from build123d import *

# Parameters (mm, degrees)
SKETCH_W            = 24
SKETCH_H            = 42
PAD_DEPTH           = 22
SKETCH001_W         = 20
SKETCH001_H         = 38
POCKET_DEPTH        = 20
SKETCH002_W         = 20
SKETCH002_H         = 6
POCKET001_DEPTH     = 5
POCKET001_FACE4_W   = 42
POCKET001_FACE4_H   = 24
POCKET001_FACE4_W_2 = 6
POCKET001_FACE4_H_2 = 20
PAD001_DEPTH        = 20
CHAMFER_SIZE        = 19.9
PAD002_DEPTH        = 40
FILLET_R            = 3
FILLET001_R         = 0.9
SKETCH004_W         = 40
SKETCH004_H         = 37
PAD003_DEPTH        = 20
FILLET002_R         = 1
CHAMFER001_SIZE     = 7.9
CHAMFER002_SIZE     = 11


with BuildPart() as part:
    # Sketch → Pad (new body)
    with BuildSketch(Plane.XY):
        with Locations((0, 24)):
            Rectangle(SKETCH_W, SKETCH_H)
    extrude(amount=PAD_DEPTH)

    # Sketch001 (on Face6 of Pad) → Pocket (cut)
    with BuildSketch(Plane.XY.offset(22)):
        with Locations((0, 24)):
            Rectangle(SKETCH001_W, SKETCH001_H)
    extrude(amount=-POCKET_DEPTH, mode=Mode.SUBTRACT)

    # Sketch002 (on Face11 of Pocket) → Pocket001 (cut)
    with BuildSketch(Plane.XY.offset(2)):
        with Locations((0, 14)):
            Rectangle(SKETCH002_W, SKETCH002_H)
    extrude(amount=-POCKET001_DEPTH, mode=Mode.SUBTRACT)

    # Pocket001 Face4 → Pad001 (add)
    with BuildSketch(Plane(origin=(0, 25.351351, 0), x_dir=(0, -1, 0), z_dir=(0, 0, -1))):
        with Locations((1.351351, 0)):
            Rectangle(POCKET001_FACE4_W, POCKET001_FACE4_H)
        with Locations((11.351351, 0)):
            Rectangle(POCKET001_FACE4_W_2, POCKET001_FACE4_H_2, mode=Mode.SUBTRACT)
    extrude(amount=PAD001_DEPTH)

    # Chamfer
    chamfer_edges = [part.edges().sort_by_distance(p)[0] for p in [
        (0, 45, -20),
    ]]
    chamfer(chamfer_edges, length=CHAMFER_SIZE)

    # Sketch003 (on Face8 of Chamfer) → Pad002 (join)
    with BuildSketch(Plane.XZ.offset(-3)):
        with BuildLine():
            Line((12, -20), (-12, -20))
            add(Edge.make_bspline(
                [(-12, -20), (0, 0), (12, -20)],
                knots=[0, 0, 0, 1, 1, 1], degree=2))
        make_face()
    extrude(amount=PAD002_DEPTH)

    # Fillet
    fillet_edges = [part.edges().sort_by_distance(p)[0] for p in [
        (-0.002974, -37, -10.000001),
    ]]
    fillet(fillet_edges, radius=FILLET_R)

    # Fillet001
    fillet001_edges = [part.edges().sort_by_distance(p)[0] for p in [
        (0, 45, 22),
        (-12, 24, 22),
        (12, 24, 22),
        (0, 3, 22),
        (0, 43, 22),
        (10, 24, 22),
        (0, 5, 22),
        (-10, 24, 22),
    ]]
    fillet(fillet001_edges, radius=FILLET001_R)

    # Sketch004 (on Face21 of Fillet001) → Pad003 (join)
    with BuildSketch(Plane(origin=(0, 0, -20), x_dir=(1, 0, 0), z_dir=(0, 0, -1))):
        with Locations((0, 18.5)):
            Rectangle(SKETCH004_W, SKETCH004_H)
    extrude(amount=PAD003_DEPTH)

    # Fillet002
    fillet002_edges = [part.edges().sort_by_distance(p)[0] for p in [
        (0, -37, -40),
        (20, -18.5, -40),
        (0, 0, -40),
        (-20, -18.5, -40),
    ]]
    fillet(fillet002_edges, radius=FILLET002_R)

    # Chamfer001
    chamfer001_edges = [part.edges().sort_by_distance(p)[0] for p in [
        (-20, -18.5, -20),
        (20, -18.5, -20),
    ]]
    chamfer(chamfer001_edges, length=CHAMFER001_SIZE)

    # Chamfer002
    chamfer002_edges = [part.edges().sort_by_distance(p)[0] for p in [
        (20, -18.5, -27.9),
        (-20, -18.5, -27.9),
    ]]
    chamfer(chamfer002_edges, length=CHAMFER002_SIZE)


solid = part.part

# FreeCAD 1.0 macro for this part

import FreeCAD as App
import Part
import Sketcher
from FreeCAD import Vector


def edges_at(feature, points):
    """Names of the edges that pass closest to the given points."""
    edges = feature.Shape.Edges
    near = lambda p: min(range(len(edges)), key=lambda i: edges[i].distToShape(Part.Vertex(*p))[0])
    return sorted({f"Edge{near(p) + 1}" for p in points})

doc = App.newDocument("Part")
body = doc.addObject("PartDesign::Body", "Body")

# Sketch on XY plane
sketch1 = doc.addObject("Sketcher::SketchObject", "Sketch")
body.addObject(sketch1)
sketch1.AttachmentSupport = (doc.XY_Plane, [""])
sketch1.MapMode = "FlatFace"
sketch1.addGeometry(Part.LineSegment(Vector(-12, 45, 0), Vector(-12, 3, 0)), False)
sketch1.addGeometry(Part.LineSegment(Vector(-12, 3, 0), Vector(12, 3, 0)), False)
sketch1.addGeometry(Part.LineSegment(Vector(12, 3, 0), Vector(12, 45, 0)), False)
sketch1.addGeometry(Part.LineSegment(Vector(12, 45, 0), Vector(-12, 45, 0)), False)
sketch1.addConstraint(Sketcher.Constraint("Coincident", 0, 2, 1, 1))
sketch1.addConstraint(Sketcher.Constraint("Coincident", 1, 2, 2, 1))
sketch1.addConstraint(Sketcher.Constraint("Coincident", 2, 2, 3, 1))
sketch1.addConstraint(Sketcher.Constraint("Coincident", 3, 2, 0, 1))
sketch1.addConstraint(Sketcher.Constraint("Vertical", 0))
sketch1.addConstraint(Sketcher.Constraint("Horizontal", 1))
sketch1.addConstraint(Sketcher.Constraint("Vertical", 2))
sketch1.addConstraint(Sketcher.Constraint("Horizontal", 3))
sketch1.addConstraint(Sketcher.Constraint("DistanceX", 1, 1, 1, 2, 24.0))
sketch1.addConstraint(Sketcher.Constraint("DistanceY", 0, 2, 0, 1, 42.0))
sketch1.addConstraint(Sketcher.Constraint("DistanceX", 0, 2, -1, 1, 12.0))
sketch1.addConstraint(Sketcher.Constraint("DistanceY", -1, 1, 0, 2, 3.0))
pad1 = doc.addObject("PartDesign::Pad", "Pad")
body.addObject(pad1)
pad1.Profile = sketch1
pad1.Length = 22

# Sketch on XY plane
sketch2 = doc.addObject("Sketcher::SketchObject", "Sketch001")
body.addObject(sketch2)
sketch2.AttachmentSupport = (doc.XY_Plane, [""])
sketch2.MapMode = "FlatFace"
sketch2.AttachmentOffset = App.Placement(Vector(0, 0, 22), App.Rotation())
sketch2.addGeometry(Part.LineSegment(Vector(-10, 43, 0), Vector(-10, 5, 0)), False)
sketch2.addGeometry(Part.LineSegment(Vector(-10, 5, 0), Vector(10, 5, 0)), False)
sketch2.addGeometry(Part.LineSegment(Vector(10, 5, 0), Vector(10, 43, 0)), False)
sketch2.addGeometry(Part.LineSegment(Vector(10, 43, 0), Vector(-10, 43, 0)), False)
sketch2.addConstraint(Sketcher.Constraint("Coincident", 0, 2, 1, 1))
sketch2.addConstraint(Sketcher.Constraint("Coincident", 1, 2, 2, 1))
sketch2.addConstraint(Sketcher.Constraint("Coincident", 2, 2, 3, 1))
sketch2.addConstraint(Sketcher.Constraint("Coincident", 3, 2, 0, 1))
sketch2.addConstraint(Sketcher.Constraint("Vertical", 0))
sketch2.addConstraint(Sketcher.Constraint("Horizontal", 1))
sketch2.addConstraint(Sketcher.Constraint("Vertical", 2))
sketch2.addConstraint(Sketcher.Constraint("Horizontal", 3))
sketch2.addConstraint(Sketcher.Constraint("DistanceX", 1, 1, 1, 2, 20.0))
sketch2.addConstraint(Sketcher.Constraint("DistanceY", 0, 2, 0, 1, 38.0))
sketch2.addConstraint(Sketcher.Constraint("DistanceX", 0, 2, -1, 1, 10.0))
sketch2.addConstraint(Sketcher.Constraint("DistanceY", -1, 1, 0, 2, 5.0))
pocket1 = doc.addObject("PartDesign::Pocket", "Pocket")
body.addObject(pocket1)
pocket1.Profile = sketch2
pocket1.Length = 20

# Sketch on XY plane
sketch3 = doc.addObject("Sketcher::SketchObject", "Sketch002")
body.addObject(sketch3)
sketch3.AttachmentSupport = (doc.XY_Plane, [""])
sketch3.MapMode = "FlatFace"
sketch3.AttachmentOffset = App.Placement(Vector(0, 0, 2), App.Rotation())
sketch3.addGeometry(Part.LineSegment(Vector(-10, 17, 0), Vector(-10, 11, 0)), False)
sketch3.addGeometry(Part.LineSegment(Vector(-10, 11, 0), Vector(10, 11, 0)), False)
sketch3.addGeometry(Part.LineSegment(Vector(10, 11, 0), Vector(10, 17, 0)), False)
sketch3.addGeometry(Part.LineSegment(Vector(10, 17, 0), Vector(-10, 17, 0)), False)
sketch3.addConstraint(Sketcher.Constraint("Coincident", 0, 2, 1, 1))
sketch3.addConstraint(Sketcher.Constraint("Coincident", 1, 2, 2, 1))
sketch3.addConstraint(Sketcher.Constraint("Coincident", 2, 2, 3, 1))
sketch3.addConstraint(Sketcher.Constraint("Coincident", 3, 2, 0, 1))
sketch3.addConstraint(Sketcher.Constraint("Vertical", 0))
sketch3.addConstraint(Sketcher.Constraint("Horizontal", 1))
sketch3.addConstraint(Sketcher.Constraint("Vertical", 2))
sketch3.addConstraint(Sketcher.Constraint("Horizontal", 3))
sketch3.addConstraint(Sketcher.Constraint("DistanceX", 1, 1, 1, 2, 20.0))
sketch3.addConstraint(Sketcher.Constraint("DistanceY", 0, 2, 0, 1, 6.0))
sketch3.addConstraint(Sketcher.Constraint("DistanceX", 0, 2, -1, 1, 10.0))
sketch3.addConstraint(Sketcher.Constraint("DistanceY", -1, 1, 0, 2, 11.0))
pocket2 = doc.addObject("PartDesign::Pocket", "Pocket001")
body.addObject(pocket2)
pocket2.Profile = sketch3
pocket2.Length = 5

# Sketch on XY plane
sketch4 = doc.addObject("Sketcher::SketchObject", "Sketch003")
body.addObject(sketch4)
sketch4.AttachmentSupport = (doc.XY_Plane, [""])
sketch4.MapMode = "FlatFace"
sketch4.addGeometry(Part.LineSegment(Vector(-12, 45, 0), Vector(12, 45, 0)), False)
sketch4.addGeometry(Part.LineSegment(Vector(12, 45, 0), Vector(12, 3, 0)), False)
sketch4.addGeometry(Part.LineSegment(Vector(12, 3, 0), Vector(-12, 3, 0)), False)
sketch4.addGeometry(Part.LineSegment(Vector(-12, 3, 0), Vector(-12, 45, 0)), False)
sketch4.addGeometry(Part.LineSegment(Vector(10, 11, 0), Vector(10, 17, 0)), False)
sketch4.addGeometry(Part.LineSegment(Vector(10, 17, 0), Vector(-10, 17, 0)), False)
sketch4.addGeometry(Part.LineSegment(Vector(-10, 17, 0), Vector(-10, 11, 0)), False)
sketch4.addGeometry(Part.LineSegment(Vector(-10, 11, 0), Vector(10, 11, 0)), False)
sketch4.addConstraint(Sketcher.Constraint("Coincident", 0, 2, 1, 1))
sketch4.addConstraint(Sketcher.Constraint("Coincident", 1, 2, 2, 1))
sketch4.addConstraint(Sketcher.Constraint("Coincident", 2, 2, 3, 1))
sketch4.addConstraint(Sketcher.Constraint("Coincident", 3, 2, 0, 1))
sketch4.addConstraint(Sketcher.Constraint("Coincident", 4, 2, 5, 1))
sketch4.addConstraint(Sketcher.Constraint("Coincident", 5, 2, 6, 1))
sketch4.addConstraint(Sketcher.Constraint("Coincident", 6, 2, 7, 1))
sketch4.addConstraint(Sketcher.Constraint("Coincident", 7, 2, 4, 1))
sketch4.addConstraint(Sketcher.Constraint("Horizontal", 0))
sketch4.addConstraint(Sketcher.Constraint("Vertical", 1))
sketch4.addConstraint(Sketcher.Constraint("Horizontal", 2))
sketch4.addConstraint(Sketcher.Constraint("Vertical", 3))
sketch4.addConstraint(Sketcher.Constraint("Vertical", 4))
sketch4.addConstraint(Sketcher.Constraint("Horizontal", 5))
sketch4.addConstraint(Sketcher.Constraint("Vertical", 6))
sketch4.addConstraint(Sketcher.Constraint("Horizontal", 7))
sketch4.addConstraint(Sketcher.Constraint("DistanceX", 0, 1, 0, 2, 24.0))
sketch4.addConstraint(Sketcher.Constraint("DistanceX", 5, 2, 5, 1, 20.0))
sketch4.addConstraint(Sketcher.Constraint("DistanceY", 1, 2, 1, 1, 42.0))
sketch4.addConstraint(Sketcher.Constraint("DistanceY", 4, 1, 4, 2, 6.0))
sketch4.addConstraint(Sketcher.Constraint("DistanceX", -1, 1, 0, 2, 12.0))
sketch4.addConstraint(Sketcher.Constraint("DistanceY", -1, 1, 0, 2, 45.0))
sketch4.addConstraint(Sketcher.Constraint("DistanceX", -1, 1, 4, 2, 10.0))
sketch4.addConstraint(Sketcher.Constraint("DistanceY", -1, 1, 4, 2, 17.0))
pad2 = doc.addObject("PartDesign::Pad", "Pad001")
body.addObject(pad2)
pad2.Profile = sketch4
pad2.Length = 20
pad2.Reversed = True
doc.recompute()

chamfer = doc.addObject("PartDesign::Chamfer", "Chamfer")
body.addObject(chamfer)
chamfer.Base = (pad2, edges_at(pad2, [(0, 45, -20)]))
chamfer.Size = 19.9

# Sketch on XZ plane
sketch5 = doc.addObject("Sketcher::SketchObject", "Sketch004")
body.addObject(sketch5)
sketch5.AttachmentSupport = (doc.XZ_Plane, [""])
sketch5.MapMode = "FlatFace"
sketch5.AttachmentOffset = App.Placement(Vector(0, 0, -3), App.Rotation())
sketch5.addGeometry(Part.LineSegment(Vector(-12, -20, 0), Vector(12, -20, 0)), False)
sketch5.addGeometry(Part.BSplineCurve([Vector(-12, -20, 0), Vector(0, 0, 0), Vector(12, -20, 0)], [3, 3], [0, 1], False, 2, [1, 1, 1], False), False)
sketch5.addConstraint(Sketcher.Constraint("Block", 1))
sketch5.addConstraint(Sketcher.Constraint("Coincident", 0, 1, 1, 1))
sketch5.addConstraint(Sketcher.Constraint("Coincident", 1, 2, 0, 2))
pad3 = doc.addObject("PartDesign::Pad", "Pad002")
body.addObject(pad3)
pad3.Profile = sketch5
pad3.Length = 40
doc.recompute()

fillet = doc.addObject("PartDesign::Fillet", "Fillet")
body.addObject(fillet)
fillet.Base = (pad3, edges_at(pad3, [(-0.003, -37, -10)]))
fillet.Radius = 3
doc.recompute()

fillet2 = doc.addObject("PartDesign::Fillet", "Fillet001")
body.addObject(fillet2)
fillet2.Base = (fillet, edges_at(fillet, [
    (0, 45, 22),
    (-12, 24, 22),
    (12, 24, 22),
    (0, 3, 22),
    (0, 43, 22),
    (10, 24, 22),
    (0, 5, 22),
    (-10, 24, 22),
]))
fillet2.Radius = 0.9

# Sketch on XY plane
sketch6 = doc.addObject("Sketcher::SketchObject", "Sketch005")
body.addObject(sketch6)
sketch6.AttachmentSupport = (doc.XY_Plane, [""])
sketch6.MapMode = "FlatFace"
sketch6.AttachmentOffset = App.Placement(Vector(0, 0, -20), App.Rotation())
sketch6.addGeometry(Part.LineSegment(Vector(-20, -37, 0), Vector(-20, 0, 0)), False)
sketch6.addGeometry(Part.LineSegment(Vector(-20, 0, 0), Vector(20, 0, 0)), False)
sketch6.addGeometry(Part.LineSegment(Vector(20, 0, 0), Vector(20, -37, 0)), False)
sketch6.addGeometry(Part.LineSegment(Vector(20, -37, 0), Vector(-20, -37, 0)), False)
sketch6.addConstraint(Sketcher.Constraint("Coincident", 0, 2, 1, 1))
sketch6.addConstraint(Sketcher.Constraint("Coincident", 1, 2, 2, 1))
sketch6.addConstraint(Sketcher.Constraint("Coincident", 2, 2, 3, 1))
sketch6.addConstraint(Sketcher.Constraint("Coincident", 3, 2, 0, 1))
sketch6.addConstraint(Sketcher.Constraint("Vertical", 0))
sketch6.addConstraint(Sketcher.Constraint("Horizontal", 1))
sketch6.addConstraint(Sketcher.Constraint("Vertical", 2))
sketch6.addConstraint(Sketcher.Constraint("Horizontal", 3))
sketch6.addConstraint(Sketcher.Constraint("Symmetric", 0, 2, 1, 2, -1, 1))
sketch6.addConstraint(Sketcher.Constraint("DistanceX", 1, 1, 1, 2, 40.0))
sketch6.addConstraint(Sketcher.Constraint("DistanceY", 0, 1, 0, 2, 37.0))
pad4 = doc.addObject("PartDesign::Pad", "Pad003")
body.addObject(pad4)
pad4.Profile = sketch6
pad4.Length = 20
pad4.Reversed = True
doc.recompute()

fillet3 = doc.addObject("PartDesign::Fillet", "Fillet002")
body.addObject(fillet3)
fillet3.Base = (pad4, edges_at(pad4, [
    (0, -37, -40),
    (20, -18.5, -40),
    (0, 0, -40),
    (-20, -18.5, -40),
]))
fillet3.Radius = 1
doc.recompute()

chamfer2 = doc.addObject("PartDesign::Chamfer", "Chamfer001")
body.addObject(chamfer2)
chamfer2.Base = (fillet3, edges_at(fillet3, [(-20, -18.5, -20), (20, -18.5, -20)]))
chamfer2.Size = 7.9
doc.recompute()

chamfer3 = doc.addObject("PartDesign::Chamfer", "Chamfer002")
body.addObject(chamfer3)
chamfer3.Base = (chamfer2, edges_at(chamfer2, [(20, -18.5, -27.9), (-20, -18.5, -27.9)]))
chamfer3.Size = 11

doc.recompute()
